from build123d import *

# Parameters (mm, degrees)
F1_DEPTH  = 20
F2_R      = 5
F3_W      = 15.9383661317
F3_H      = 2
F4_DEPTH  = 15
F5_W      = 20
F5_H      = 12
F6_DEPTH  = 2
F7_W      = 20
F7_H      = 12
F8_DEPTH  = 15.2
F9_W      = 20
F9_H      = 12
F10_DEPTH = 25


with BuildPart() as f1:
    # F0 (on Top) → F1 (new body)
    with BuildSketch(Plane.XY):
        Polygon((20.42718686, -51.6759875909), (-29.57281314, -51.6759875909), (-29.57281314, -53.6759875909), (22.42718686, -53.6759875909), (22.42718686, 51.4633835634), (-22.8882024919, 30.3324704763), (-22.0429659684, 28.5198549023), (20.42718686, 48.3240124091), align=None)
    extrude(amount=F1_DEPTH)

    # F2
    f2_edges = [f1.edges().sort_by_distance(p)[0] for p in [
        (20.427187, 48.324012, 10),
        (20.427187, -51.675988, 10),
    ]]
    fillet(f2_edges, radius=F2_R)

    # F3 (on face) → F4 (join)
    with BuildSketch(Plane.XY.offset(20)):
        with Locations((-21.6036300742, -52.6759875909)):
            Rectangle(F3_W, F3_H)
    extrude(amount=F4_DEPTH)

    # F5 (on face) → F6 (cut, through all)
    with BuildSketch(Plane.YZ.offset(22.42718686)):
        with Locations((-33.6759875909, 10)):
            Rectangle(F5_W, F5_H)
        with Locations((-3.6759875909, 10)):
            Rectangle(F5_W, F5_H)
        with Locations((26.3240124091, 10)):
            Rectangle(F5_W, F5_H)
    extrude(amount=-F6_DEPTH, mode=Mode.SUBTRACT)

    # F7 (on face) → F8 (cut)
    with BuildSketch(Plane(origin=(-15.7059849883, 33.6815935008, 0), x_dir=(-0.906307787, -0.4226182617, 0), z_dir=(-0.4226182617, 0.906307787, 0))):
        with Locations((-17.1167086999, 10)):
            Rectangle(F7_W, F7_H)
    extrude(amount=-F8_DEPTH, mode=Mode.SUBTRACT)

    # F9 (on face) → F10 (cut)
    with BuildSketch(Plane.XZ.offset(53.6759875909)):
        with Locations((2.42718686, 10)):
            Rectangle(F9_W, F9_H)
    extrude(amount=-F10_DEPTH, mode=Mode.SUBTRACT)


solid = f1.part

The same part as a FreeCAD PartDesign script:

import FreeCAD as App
import Part
import Sketcher
from FreeCAD import Vector
Q = App.Units.Quantity


def edges_at(feature, points):
    """Names of the edges that pass closest to the given points."""
    edges = feature.Shape.Edges
    near = lambda p: min(range(len(edges)), key=lambda i: edges[i].distToShape(Part.Vertex(*p))[0])
    return sorted({f"Edge{near(p) + 1}" for p in points})

doc = App.newDocument("Part")
body = doc.addObject("PartDesign::Body", "Body")

# Sketch on XY plane
sketch1 = doc.addObject("Sketcher::SketchObject", "Sketch")
body.addObject(sketch1)
sketch1.AttachmentSupport = (doc.XY_Plane, [""])
sketch1.MapMode = "FlatFace"
sketch1.addGeometry(Part.LineSegment(Vector(20.427187, -51.675988, 0), Vector(-29.572813, -51.675988, 0)), False)
sketch1.addGeometry(Part.LineSegment(Vector(-29.572813, -51.675988, 0), Vector(-29.572813, -53.675988, 0)), False)
sketch1.addGeometry(Part.LineSegment(Vector(-29.572813, -53.675988, 0), Vector(22.427187, -53.675988, 0)), False)
sketch1.addGeometry(Part.LineSegment(Vector(22.427187, -53.675988, 0), Vector(22.427187, 51.463384, 0)), False)
sketch1.addGeometry(Part.LineSegment(Vector(22.427187, 51.463384, 0), Vector(-22.888202, 30.33247, 0)), False)
sketch1.addGeometry(Part.LineSegment(Vector(-22.888202, 30.33247, 0), Vector(-22.042966, 28.519855, 0)), False)
sketch1.addGeometry(Part.LineSegment(Vector(-22.042966, 28.519855, 0), Vector(20.427187, 48.324012, 0)), False)
sketch1.addGeometry(Part.LineSegment(Vector(20.427187, 48.324012, 0), Vector(20.427187, -51.675988, 0)), False)
sketch1.addConstraint(Sketcher.Constraint("Coincident", 0, 2, 1, 1))
sketch1.addConstraint(Sketcher.Constraint("Coincident", 1, 2, 2, 1))
sketch1.addConstraint(Sketcher.Constraint("Coincident", 2, 2, 3, 1))
sketch1.addConstraint(Sketcher.Constraint("Coincident", 3, 2, 4, 1))
sketch1.addConstraint(Sketcher.Constraint("Coincident", 4, 2, 5, 1))
sketch1.addConstraint(Sketcher.Constraint("Coincident", 5, 2, 6, 1))
sketch1.addConstraint(Sketcher.Constraint("Coincident", 6, 2, 7, 1))
sketch1.addConstraint(Sketcher.Constraint("Coincident", 7, 2, 0, 1))
sketch1.addConstraint(Sketcher.Constraint("Horizontal", 0))
sketch1.addConstraint(Sketcher.Constraint("Vertical", 1))
sketch1.addConstraint(Sketcher.Constraint("Horizontal", 2))
sketch1.addConstraint(Sketcher.Constraint("Vertical", 3))
sketch1.addConstraint(Sketcher.Constraint("Vertical", 7))
sketch1.addConstraint(Sketcher.Constraint("Perpendicular", 4, 5))
sketch1.addConstraint(Sketcher.Constraint("Perpendicular", 5, 6))
sketch1.addConstraint(Sketcher.Constraint("DistanceX", 0, 2, 0, 1, Q("50 mm")))
sketch1.addConstraint(Sketcher.Constraint("DistanceX", 2, 1, 2, 2, Q("52 mm")))
sketch1.addConstraint(Sketcher.Constraint("DistanceY", 1, 2, 1, 1, Q("2 mm")))
sketch1.addConstraint(Sketcher.Constraint("DistanceY", 7, 2, 7, 1, Q("100 mm")))
sketch1.addConstraint(Sketcher.Constraint("Angle", 4, Q("-155 deg")))
sketch1.addConstraint(Sketcher.Constraint("Distance", 4, Q("50 mm")))
sketch1.addConstraint(Sketcher.Constraint("Distance", 5, Q("2 mm")))
sketch1.addConstraint(Sketcher.Constraint("DistanceY", -1, 1, 4, 2, Q("30.33247 mm")))
sketch1.addConstraint(Sketcher.Constraint("DistanceX", 0, 2, -1, 1, Q("29.572813 mm")))
pad1 = doc.addObject("PartDesign::Pad", "Pad")
body.addObject(pad1)
pad1.Profile = sketch1
pad1.Length = 20
doc.recompute()

fillet = doc.addObject("PartDesign::Fillet", "Fillet")
body.addObject(fillet)
fillet.Base = (pad1, edges_at(pad1, [(20.427, 48.324, 10), (20.427, -51.676, 10)]))
fillet.Radius = 5

# Sketch on XY plane
sketch2 = doc.addObject("Sketcher::SketchObject", "Sketch001")
body.addObject(sketch2)
sketch2.AttachmentSupport = (doc.XY_Plane, [""])
sketch2.MapMode = "FlatFace"
sketch2.AttachmentOffset = App.Placement(Vector(0, 0, 20), App.Rotation())
sketch2.addGeometry(Part.LineSegment(Vector(-29.572813, -51.675988, 0), Vector(-29.572813, -53.675988, 0)), False)
sketch2.addGeometry(Part.LineSegment(Vector(-29.572813, -53.675988, 0), Vector(-13.634447, -53.675988, 0)), False)
sketch2.addGeometry(Part.LineSegment(Vector(-13.634447, -53.675988, 0), Vector(-13.634447, -51.675988, 0)), False)
sketch2.addGeometry(Part.LineSegment(Vector(-13.634447, -51.675988, 0), Vector(-29.572813, -51.675988, 0)), False)
sketch2.addConstraint(Sketcher.Constraint("Coincident", 0, 2, 1, 1))
sketch2.addConstraint(Sketcher.Constraint("Coincident", 1, 2, 2, 1))
sketch2.addConstraint(Sketcher.Constraint("Coincident", 2, 2, 3, 1))
sketch2.addConstraint(Sketcher.Constraint("Coincident", 3, 2, 0, 1))
sketch2.addConstraint(Sketcher.Constraint("Vertical", 0))
sketch2.addConstraint(Sketcher.Constraint("Horizontal", 1))
sketch2.addConstraint(Sketcher.Constraint("Vertical", 2))
sketch2.addConstraint(Sketcher.Constraint("Horizontal", 3))
sketch2.addConstraint(Sketcher.Constraint("DistanceY", 0, 2, 0, 1, Q("2 mm")))
sketch2.addConstraint(Sketcher.Constraint("DistanceX", 1, 1, 1, 2, Q("15.938366 mm")))
sketch2.addConstraint(Sketcher.Constraint("DistanceX", 0, 2, -1, 1, Q("29.572813 mm")))
sketch2.addConstraint(Sketcher.Constraint("DistanceY", 0, 2, -1, 1, Q("53.675988 mm")))
pad2 = doc.addObject("PartDesign::Pad", "Pad001")
body.addObject(pad2)
pad2.Profile = sketch2
pad2.Length = 15

# Sketch on YZ plane
sketch3 = doc.addObject("Sketcher::SketchObject", "Sketch002")
body.addObject(sketch3)
sketch3.AttachmentSupport = (doc.YZ_Plane, [""])
sketch3.MapMode = "FlatFace"
sketch3.AttachmentOffset = App.Placement(Vector(0, 0, 22.427187), App.Rotation())
sketch3.addGeometry(Part.LineSegment(Vector(-43.675988, 16, 0), Vector(-43.675988, 4, 0)), False)
sketch3.addGeometry(Part.LineSegment(Vector(-43.675988, 4, 0), Vector(-23.675988, 4, 0)), False)
sketch3.addGeometry(Part.LineSegment(Vector(-23.675988, 4, 0), Vector(-23.675988, 16, 0)), False)
sketch3.addGeometry(Part.LineSegment(Vector(-23.675988, 16, 0), Vector(-43.675988, 16, 0)), False)
sketch3.addGeometry(Part.LineSegment(Vector(-13.675988, 16, 0), Vector(-13.675988, 4, 0)), False)
sketch3.addGeometry(Part.LineSegment(Vector(-13.675988, 4, 0), Vector(6.324012, 4, 0)), False)
sketch3.addGeometry(Part.LineSegment(Vector(6.324012, 4, 0), Vector(6.324012, 16, 0)), False)
sketch3.addGeometry(Part.LineSegment(Vector(6.324012, 16, 0), Vector(-13.675988, 16, 0)), False)
sketch3.addGeometry(Part.LineSegment(Vector(16.324012, 16, 0), Vector(16.324012, 4, 0)), False)
sketch3.addGeometry(Part.LineSegment(Vector(16.324012, 4, 0), Vector(36.324012, 4, 0)), False)
sketch3.addGeometry(Part.LineSegment(Vector(36.324012, 4, 0), Vector(36.324012, 16, 0)), False)
sketch3.addGeometry(Part.LineSegment(Vector(36.324012, 16, 0), Vector(16.324012, 16, 0)), False)
sketch3.addConstraint(Sketcher.Constraint("Coincident", 0, 2, 1, 1))
sketch3.addConstraint(Sketcher.Constraint("Coincident", 1, 2, 2, 1))
sketch3.addConstraint(Sketcher.Constraint("Coincident", 2, 2, 3, 1))
sketch3.addConstraint(Sketcher.Constraint("Coincident", 3, 2, 0, 1))
sketch3.addConstraint(Sketcher.Constraint("Coincident", 4, 2, 5, 1))
sketch3.addConstraint(Sketcher.Constraint("Coincident", 5, 2, 6, 1))
sketch3.addConstraint(Sketcher.Constraint("Coincident", 6, 2, 7, 1))
sketch3.addConstraint(Sketcher.Constraint("Coincident", 7, 2, 4, 1))
sketch3.addConstraint(Sketcher.Constraint("Coincident", 8, 2, 9, 1))
sketch3.addConstraint(Sketcher.Constraint("Coincident", 9, 2, 10, 1))
sketch3.addConstraint(Sketcher.Constraint("Coincident", 10, 2, 11, 1))
sketch3.addConstraint(Sketcher.Constraint("Coincident", 11, 2, 8, 1))
sketch3.addConstraint(Sketcher.Constraint("Vertical", 0))
sketch3.addConstraint(Sketcher.Constraint("Horizontal", 1))
sketch3.addConstraint(Sketcher.Constraint("Vertical", 2))
sketch3.addConstraint(Sketcher.Constraint("Horizontal", 3))
sketch3.addConstraint(Sketcher.Constraint("Vertical", 4))
sketch3.addConstraint(Sketcher.Constraint("Horizontal", 5))
sketch3.addConstraint(Sketcher.Constraint("Vertical", 6))
sketch3.addConstraint(Sketcher.Constraint("Horizontal", 7))
sketch3.addConstraint(Sketcher.Constraint("Vertical", 8))
sketch3.addConstraint(Sketcher.Constraint("Horizontal", 9))
sketch3.addConstraint(Sketcher.Constraint("Vertical", 10))
sketch3.addConstraint(Sketcher.Constraint("Horizontal", 11))
sketch3.addConstraint(Sketcher.Constraint("Horizontal", 1, 2, 4, 2))
sketch3.addConstraint(Sketcher.Constraint("Horizontal", 3, 2, 6, 2))
sketch3.addConstraint(Sketcher.Constraint("Horizontal", 5, 2, 8, 2))
sketch3.addConstraint(Sketcher.Constraint("Horizontal", 7, 2, 10, 2))
sketch3.addConstraint(Sketcher.Constraint("Equal", 3, 5))
sketch3.addConstraint(Sketcher.Constraint("Equal", 7, 9))
sketch3.addConstraint(Sketcher.Constraint("DistanceX", 1, 1, 1, 2, Q("20 mm")))
sketch3.addConstraint(Sketcher.Constraint("DistanceY", 0, 2, 0, 1, Q("12 mm")))
sketch3.addConstraint(Sketcher.Constraint("DistanceY", -1, 1, 0, 2, Q("4 mm")))
sketch3.addConstraint(Sketcher.Constraint("DistanceX", 1, 2, 4, 2, Q("10 mm")))
sketch3.addConstraint(Sketcher.Constraint("DistanceX", 5, 2, 8, 2, Q("10 mm")))
sketch3.addConstraint(Sketcher.Constraint("DistanceX", 0, 2, -1, 1, Q("43.675988 mm")))
pocket1 = doc.addObject("PartDesign::Pocket", "Pocket")
body.addObject(pocket1)
pocket1.Profile = sketch3
pocket1.Length = 2

# Sketch on an angled plane
sketch4 = doc.addObject("Sketcher::SketchObject", "Sketch003")
body.addObject(sketch4)
sketch4.Placement = App.Placement(Vector(-15.705985, 33.681594, 0), App.Rotation(Vector(-0.906307787, -0.422618262, 0), Vector(0, 0, 1), Vector(-0.422618262, 0.906307787, 0), "ZXY"))
sketch4.addGeometry(Part.LineSegment(Vector(-27.116709, 16, 0), Vector(-27.116709, 4, 0)), False)
sketch4.addGeometry(Part.LineSegment(Vector(-27.116709, 4, 0), Vector(-7.116709, 4, 0)), False)
sketch4.addGeometry(Part.LineSegment(Vector(-7.116709, 4, 0), Vector(-7.116709, 16, 0)), False)
sketch4.addGeometry(Part.LineSegment(Vector(-7.116709, 16, 0), Vector(-27.116709, 16, 0)), False)
sketch4.addConstraint(Sketcher.Constraint("Coincident", 0, 2, 1, 1))
sketch4.addConstraint(Sketcher.Constraint("Coincident", 1, 2, 2, 1))
sketch4.addConstraint(Sketcher.Constraint("Coincident", 2, 2, 3, 1))
sketch4.addConstraint(Sketcher.Constraint("Coincident", 3, 2, 0, 1))
sketch4.addConstraint(Sketcher.Constraint("Vertical", 0))
sketch4.addConstraint(Sketcher.Constraint("Horizontal", 1))
sketch4.addConstraint(Sketcher.Constraint("Vertical", 2))
sketch4.addConstraint(Sketcher.Constraint("Horizontal", 3))
sketch4.addConstraint(Sketcher.Constraint("DistanceX", 1, 1, 1, 2, Q("20 mm")))
sketch4.addConstraint(Sketcher.Constraint("DistanceY", 0, 2, 0, 1, Q("12 mm")))
sketch4.addConstraint(Sketcher.Constraint("DistanceY", -1, 1, 0, 2, Q("4 mm")))
sketch4.addConstraint(Sketcher.Constraint("DistanceX", 0, 2, -1, 1, Q("27.116709 mm")))
pocket2 = doc.addObject("PartDesign::Pocket", "Pocket001")
body.addObject(pocket2)
pocket2.Profile = sketch4
pocket2.Length = 15.2

# Sketch on XZ plane
sketch5 = doc.addObject("Sketcher::SketchObject", "Sketch004")
body.addObject(sketch5)
sketch5.AttachmentSupport = (doc.XZ_Plane, [""])
sketch5.MapMode = "FlatFace"
sketch5.AttachmentOffset = App.Placement(Vector(0, 0, 53.675988), App.Rotation())
sketch5.addGeometry(Part.LineSegment(Vector(-7.572813, 16, 0), Vector(-7.572813, 4, 0)), False)
sketch5.addGeometry(Part.LineSegment(Vector(-7.572813, 4, 0), Vector(12.427187, 4, 0)), False)
sketch5.addGeometry(Part.LineSegment(Vector(12.427187, 4, 0), Vector(12.427187, 16, 0)), False)
sketch5.addGeometry(Part.LineSegment(Vector(12.427187, 16, 0), Vector(-7.572813, 16, 0)), False)
sketch5.addConstraint(Sketcher.Constraint("Coincident", 0, 2, 1, 1))
sketch5.addConstraint(Sketcher.Constraint("Coincident", 1, 2, 2, 1))
sketch5.addConstraint(Sketcher.Constraint("Coincident", 2, 2, 3, 1))
sketch5.addConstraint(Sketcher.Constraint("Coincident", 3, 2, 0, 1))
sketch5.addConstraint(Sketcher.Constraint("Vertical", 0))
sketch5.addConstraint(Sketcher.Constraint("Horizontal", 1))
sketch5.addConstraint(Sketcher.Constraint("Vertical", 2))
sketch5.addConstraint(Sketcher.Constraint("Horizontal", 3))
sketch5.addConstraint(Sketcher.Constraint("DistanceX", 1, 1, 1, 2, Q("20 mm")))
sketch5.addConstraint(Sketcher.Constraint("DistanceY", 0, 2, 0, 1, Q("12 mm")))
sketch5.addConstraint(Sketcher.Constraint("DistanceY", -1, 1, 0, 2, Q("4 mm")))
sketch5.addConstraint(Sketcher.Constraint("DistanceX", 0, 2, -1, 1, Q("7.572813 mm")))
pocket3 = doc.addObject("PartDesign::Pocket", "Pocket002")
body.addObject(pocket3)
pocket3.Profile = sketch5
pocket3.Length = 25

doc.recompute()
